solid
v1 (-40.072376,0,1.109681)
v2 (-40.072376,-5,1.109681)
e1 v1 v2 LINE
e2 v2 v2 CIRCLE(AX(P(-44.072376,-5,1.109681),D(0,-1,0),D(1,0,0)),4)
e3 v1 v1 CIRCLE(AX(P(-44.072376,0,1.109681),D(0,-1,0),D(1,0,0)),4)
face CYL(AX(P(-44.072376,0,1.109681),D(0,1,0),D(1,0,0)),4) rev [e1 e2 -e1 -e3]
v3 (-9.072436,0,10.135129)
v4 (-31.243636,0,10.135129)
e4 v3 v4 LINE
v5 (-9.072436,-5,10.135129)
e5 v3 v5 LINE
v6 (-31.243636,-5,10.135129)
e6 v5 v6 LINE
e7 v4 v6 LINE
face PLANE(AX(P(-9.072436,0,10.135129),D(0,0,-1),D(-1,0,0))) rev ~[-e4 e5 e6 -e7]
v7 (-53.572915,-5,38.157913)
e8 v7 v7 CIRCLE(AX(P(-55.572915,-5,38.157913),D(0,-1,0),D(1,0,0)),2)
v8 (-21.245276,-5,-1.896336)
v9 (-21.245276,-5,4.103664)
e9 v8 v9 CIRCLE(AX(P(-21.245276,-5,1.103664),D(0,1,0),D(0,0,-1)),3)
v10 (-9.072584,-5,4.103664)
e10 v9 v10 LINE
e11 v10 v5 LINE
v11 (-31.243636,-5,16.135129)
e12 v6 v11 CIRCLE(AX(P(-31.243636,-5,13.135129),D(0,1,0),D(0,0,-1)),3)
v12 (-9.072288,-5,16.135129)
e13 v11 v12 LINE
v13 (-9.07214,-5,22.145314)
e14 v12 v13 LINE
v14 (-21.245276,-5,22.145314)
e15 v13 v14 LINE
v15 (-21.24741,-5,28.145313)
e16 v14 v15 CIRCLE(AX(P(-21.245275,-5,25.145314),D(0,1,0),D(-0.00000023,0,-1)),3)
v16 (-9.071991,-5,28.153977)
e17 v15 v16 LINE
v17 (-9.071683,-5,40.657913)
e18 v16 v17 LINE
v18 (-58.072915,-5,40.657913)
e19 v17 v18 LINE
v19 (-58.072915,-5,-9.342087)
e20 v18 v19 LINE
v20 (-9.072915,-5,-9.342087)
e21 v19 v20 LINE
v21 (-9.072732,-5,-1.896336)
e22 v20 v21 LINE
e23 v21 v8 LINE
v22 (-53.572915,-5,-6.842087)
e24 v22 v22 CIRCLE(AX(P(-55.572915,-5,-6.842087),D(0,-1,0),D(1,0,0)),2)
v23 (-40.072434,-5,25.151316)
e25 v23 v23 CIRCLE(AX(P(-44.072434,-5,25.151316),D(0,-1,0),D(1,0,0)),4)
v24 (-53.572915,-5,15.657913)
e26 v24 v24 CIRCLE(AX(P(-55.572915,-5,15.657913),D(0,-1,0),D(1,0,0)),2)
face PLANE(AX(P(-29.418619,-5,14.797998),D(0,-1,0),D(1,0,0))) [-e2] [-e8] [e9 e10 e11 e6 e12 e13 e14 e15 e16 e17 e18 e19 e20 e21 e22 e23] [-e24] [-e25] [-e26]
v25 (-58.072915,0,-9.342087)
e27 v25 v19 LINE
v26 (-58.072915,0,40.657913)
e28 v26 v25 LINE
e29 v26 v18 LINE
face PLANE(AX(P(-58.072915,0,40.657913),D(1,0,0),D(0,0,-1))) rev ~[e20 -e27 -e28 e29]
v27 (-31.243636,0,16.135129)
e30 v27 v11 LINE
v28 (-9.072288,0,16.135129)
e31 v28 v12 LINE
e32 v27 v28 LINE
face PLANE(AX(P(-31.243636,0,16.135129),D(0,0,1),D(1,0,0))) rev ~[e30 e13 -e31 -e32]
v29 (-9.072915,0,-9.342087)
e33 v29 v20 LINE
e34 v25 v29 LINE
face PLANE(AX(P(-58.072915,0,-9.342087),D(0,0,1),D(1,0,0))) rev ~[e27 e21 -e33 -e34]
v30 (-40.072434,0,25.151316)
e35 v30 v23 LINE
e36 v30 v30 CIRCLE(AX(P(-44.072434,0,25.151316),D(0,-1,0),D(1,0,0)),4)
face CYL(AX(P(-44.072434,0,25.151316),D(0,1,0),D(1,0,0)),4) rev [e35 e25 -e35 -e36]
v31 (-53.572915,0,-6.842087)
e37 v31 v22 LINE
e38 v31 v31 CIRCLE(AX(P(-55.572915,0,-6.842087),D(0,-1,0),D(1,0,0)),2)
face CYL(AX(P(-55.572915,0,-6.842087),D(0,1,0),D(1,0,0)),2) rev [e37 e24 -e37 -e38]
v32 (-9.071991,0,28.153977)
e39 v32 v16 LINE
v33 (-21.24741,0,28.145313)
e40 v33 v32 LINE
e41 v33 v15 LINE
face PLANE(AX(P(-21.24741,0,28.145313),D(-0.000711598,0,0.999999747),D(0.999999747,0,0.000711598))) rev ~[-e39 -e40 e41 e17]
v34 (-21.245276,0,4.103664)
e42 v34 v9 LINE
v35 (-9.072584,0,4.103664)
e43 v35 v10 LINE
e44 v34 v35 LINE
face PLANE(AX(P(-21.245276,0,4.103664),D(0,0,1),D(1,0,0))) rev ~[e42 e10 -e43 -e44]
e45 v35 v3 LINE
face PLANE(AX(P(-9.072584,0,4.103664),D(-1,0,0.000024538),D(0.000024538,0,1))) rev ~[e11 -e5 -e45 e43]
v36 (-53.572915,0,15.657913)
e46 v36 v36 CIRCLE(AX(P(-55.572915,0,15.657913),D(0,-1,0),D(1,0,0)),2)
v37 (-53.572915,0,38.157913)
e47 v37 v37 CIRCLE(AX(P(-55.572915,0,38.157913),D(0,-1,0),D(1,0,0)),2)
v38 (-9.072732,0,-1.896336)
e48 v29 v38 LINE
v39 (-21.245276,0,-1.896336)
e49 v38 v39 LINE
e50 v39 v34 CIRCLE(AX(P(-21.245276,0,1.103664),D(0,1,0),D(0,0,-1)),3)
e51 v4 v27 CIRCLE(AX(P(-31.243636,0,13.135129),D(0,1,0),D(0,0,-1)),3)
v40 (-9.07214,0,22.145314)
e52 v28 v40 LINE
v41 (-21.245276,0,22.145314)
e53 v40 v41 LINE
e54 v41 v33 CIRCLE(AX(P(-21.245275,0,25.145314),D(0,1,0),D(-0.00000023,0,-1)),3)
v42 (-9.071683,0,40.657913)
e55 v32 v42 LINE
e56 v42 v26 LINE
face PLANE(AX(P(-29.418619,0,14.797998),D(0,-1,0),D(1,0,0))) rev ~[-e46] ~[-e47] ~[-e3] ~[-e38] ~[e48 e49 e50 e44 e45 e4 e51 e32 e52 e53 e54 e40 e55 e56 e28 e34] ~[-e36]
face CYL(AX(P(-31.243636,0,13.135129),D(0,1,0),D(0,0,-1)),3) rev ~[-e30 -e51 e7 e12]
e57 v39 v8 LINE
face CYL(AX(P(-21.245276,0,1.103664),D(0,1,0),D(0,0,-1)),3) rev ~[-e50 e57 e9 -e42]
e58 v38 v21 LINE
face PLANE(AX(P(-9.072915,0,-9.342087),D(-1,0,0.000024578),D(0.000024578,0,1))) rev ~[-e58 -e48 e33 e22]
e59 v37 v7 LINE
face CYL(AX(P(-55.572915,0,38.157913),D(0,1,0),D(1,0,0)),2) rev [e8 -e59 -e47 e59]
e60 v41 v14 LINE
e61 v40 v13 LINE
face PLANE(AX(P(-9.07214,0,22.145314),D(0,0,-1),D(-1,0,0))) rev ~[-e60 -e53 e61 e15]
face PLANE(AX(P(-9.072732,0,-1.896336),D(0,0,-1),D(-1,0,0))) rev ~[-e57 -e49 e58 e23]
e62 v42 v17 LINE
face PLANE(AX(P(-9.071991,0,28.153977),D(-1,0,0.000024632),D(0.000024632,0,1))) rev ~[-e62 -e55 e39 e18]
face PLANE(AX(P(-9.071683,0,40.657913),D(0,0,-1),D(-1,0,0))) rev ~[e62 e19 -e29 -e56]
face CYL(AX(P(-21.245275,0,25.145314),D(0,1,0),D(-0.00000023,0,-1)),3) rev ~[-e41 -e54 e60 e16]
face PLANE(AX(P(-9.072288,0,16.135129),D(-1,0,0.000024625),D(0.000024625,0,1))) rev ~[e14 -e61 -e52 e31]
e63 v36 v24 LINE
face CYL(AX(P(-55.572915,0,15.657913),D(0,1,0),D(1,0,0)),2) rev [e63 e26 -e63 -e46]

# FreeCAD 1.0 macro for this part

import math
import FreeCAD as App
import Part
import Sketcher
Q = App.Units.Quantity

doc = App.newDocument("Part")
params = doc.addObject("Spreadsheet::Sheet", "Params")
for row, (alias, value) in enumerate([
    ("sketch1_diameter", "4 mm"),
    ("sketch1_diameter2", "8 mm"),
    ("sketch1_radius", "3 mm"),
    ("sketch1_width", "49 mm"),
    ("sketch1_height", "50 mm"),
    ("pad1_length", "5 mm"),
], start=1):
    params.set(f"A{row}", alias)
    params.set(f"B{row}", "=" + value)
    params.setAlias(f"B{row}", alias)

body = doc.addObject("PartDesign::Body", "Body")

# Sketch on XZ plane
sketch1 = doc.addObject("Sketcher::SketchObject", "Sketch")
body.addObject(sketch1)
sketch1.AttachmentSupport = (doc.XZ_Plane, [""])
sketch1.MapMode = "FlatFace"
sketch1.addGeometry([
    Part.LineSegment(App.Vector(-9.1, 28.2, 0), App.Vector(-9.1, 40.7, 0)),  # 0
    Part.LineSegment(App.Vector(-9.1, 40.7, 0), App.Vector(-58.1, 40.7, 0)),  # 1
    Part.LineSegment(App.Vector(-58.1, 40.7, 0), App.Vector(-58.1, -9.3, 0)),  # 2
    Part.LineSegment(App.Vector(-58.1, -9.3, 0), App.Vector(-9.1, -9.3, 0)),  # 3
    Part.LineSegment(App.Vector(-9.1, -9.3, 0), App.Vector(-9.1, -1.9, 0)),  # 4
    Part.LineSegment(App.Vector(-9.1, -1.9, 0), App.Vector(-21.2, -1.9, 0)),  # 5
    Part.ArcOfCircle(Part.Circle(App.Vector(-21.2, 1.1, 0), App.Vector(0, 0, 1), 3), math.radians(90), math.radians(270)),  # 6
    Part.LineSegment(App.Vector(-21.2, 4.1, 0), App.Vector(-9.1, 4.1, 0)),  # 7
    Part.LineSegment(App.Vector(-9.1, 4.1, 0), App.Vector(-9.1, 10.1, 0)),  # 8
    Part.LineSegment(App.Vector(-9.1, 10.1, 0), App.Vector(-31.2, 10.1, 0)),  # 9
    Part.ArcOfCircle(Part.Circle(App.Vector(-31.2, 13.1, 0), App.Vector(0, 0, 1), 3), math.radians(90), math.radians(270)),  # 10
    Part.LineSegment(App.Vector(-31.2, 16.1, 0), App.Vector(-9.1, 16.1, 0)),  # 11
    Part.LineSegment(App.Vector(-9.1, 16.1, 0), App.Vector(-9.1, 22.1, 0)),  # 12
    Part.LineSegment(App.Vector(-9.1, 22.1, 0), App.Vector(-21.2, 22.1, 0)),  # 13
    Part.ArcOfCircle(Part.Circle(App.Vector(-21.2, 25.1, 0), App.Vector(0, 0, 1), 3), math.radians(90), math.radians(270)),  # 14
    Part.LineSegment(App.Vector(-21.2, 28.1, 0), App.Vector(-9.1, 28.2, 0)),  # 15
    Part.Circle(App.Vector(-55.6, -6.8, 0), App.Vector(0, 0, 1), 2),  # 16
    Part.Circle(App.Vector(-55.6, 15.7, 0), App.Vector(0, 0, 1), 2),  # 17
    Part.Circle(App.Vector(-44.1, 1.1, 0), App.Vector(0, 0, 1), 4),  # 18
    Part.Circle(App.Vector(-55.6, 38.2, 0), App.Vector(0, 0, 1), 2),  # 19
    Part.Circle(App.Vector(-44.1, 25.2, 0), App.Vector(0, 0, 1), 4),  # 20
], False)
sketch1.addConstraint([
    Sketcher.Constraint("Coincident", 0, 2, 1, 1),
    Sketcher.Constraint("Coincident", 1, 2, 2, 1),
    Sketcher.Constraint("Coincident", 2, 2, 3, 1),
    Sketcher.Constraint("Coincident", 3, 2, 4, 1),
    Sketcher.Constraint("Coincident", 4, 2, 5, 1),
    Sketcher.Constraint("Tangent", 5, 2, 6, 2),
    Sketcher.Constraint("Tangent", 6, 1, 7, 1),
    Sketcher.Constraint("Coincident", 7, 2, 8, 1),
    Sketcher.Constraint("Coincident", 8, 2, 9, 1),
    Sketcher.Constraint("Tangent", 9, 2, 10, 2),
    Sketcher.Constraint("Tangent", 10, 1, 11, 1),
    Sketcher.Constraint("Coincident", 11, 2, 12, 1),
    Sketcher.Constraint("Coincident", 12, 2, 13, 1),
    Sketcher.Constraint("Tangent", 13, 2, 14, 2),
    Sketcher.Constraint("Tangent", 14, 1, 15, 1),
    Sketcher.Constraint("Coincident", 15, 2, 0, 1),
    Sketcher.Constraint("Horizontal", 1),
    Sketcher.Constraint("Vertical", 2),
    Sketcher.Constraint("Horizontal", 3),
    Sketcher.Constraint("Horizontal", 5),
    Sketcher.Constraint("Horizontal", 7),
    Sketcher.Constraint("Horizontal", 9),
    Sketcher.Constraint("Horizontal", 11),
    Sketcher.Constraint("Horizontal", 13),
    Sketcher.Constraint("Equal", 6, 10),
    Sketcher.Constraint("Equal", 10, 14),
    Sketcher.Constraint("Equal", 16, 17),
    Sketcher.Constraint("Equal", 17, 19),
    Sketcher.Constraint("Equal", 18, 20),
    Sketcher.Constraint("Parallel", 0, 4),
    Sketcher.Constraint("Parallel", 4, 8),
    Sketcher.Constraint("Parallel", 8, 12),
    Sketcher.Constraint("Vertical", 6, 3, 14, 3),
    Sketcher.Constraint("Vertical", 16, 3, 17, 3),
    Sketcher.Constraint("Vertical", 17, 3, 19, 3),
    Sketcher.Constraint("Diameter", 16, Q("4 mm")),
    Sketcher.Constraint("Diameter", 18, Q("8 mm")),
    Sketcher.Constraint("Radius", 6, Q("3 mm")),
    Sketcher.Constraint("DistanceX", 3, 1, 3, 2, Q("49 mm")),
    Sketcher.Constraint("DistanceY", 2, 2, 2, 1, Q("50 mm")),
    Sketcher.Constraint("DistanceY", 16, 3, 19, 3, Q("45 mm")),
    Sketcher.Constraint("DistanceY", 17, 3, 1, 2, Q("25 mm")),
    Sketcher.Constraint("DistanceY", 16, 3, 17, 3, Q("22.5 mm")),
    Sketcher.Constraint("DistanceX", 1, 2, 19, 3, Q("2.5 mm")),
    Sketcher.Constraint("DistanceX", 9, 2, 9, 1, Q("22.1712 mm")),
    Sketcher.Constraint("DistanceY", 16, 3, 14, 3, Q("31.987401 mm")),
    Sketcher.Constraint("DistanceX", 18, 3, 6, 3, Q("22.8271 mm")),
    Sketcher.Constraint("DistanceX", 20, 3, 10, 3, Q("12.828798 mm")),
    Sketcher.Constraint("Distance", 4, Q("7.445751 mm")),
    Sketcher.Constraint("DistanceX", 1, 2, 1, 1, Q("49.001232 mm")),
    Sketcher.Constraint("DistanceX", 5, 2, 5, 1, Q("12.172544 mm")),
    Sketcher.Constraint("DistanceX", 7, 1, 7, 2, Q("12.172692 mm")),
    Sketcher.Constraint("DistanceX", 11, 1, 11, 2, Q("22.171348 mm")),
    Sketcher.Constraint("DistanceX", 13, 2, 13, 1, Q("12.173136 mm")),
    Sketcher.Constraint("DistanceY", -1, 1, 10, 3, Q("13.135129 mm")),
    Sketcher.Constraint("DistanceY", -1, 1, 18, 3, Q("1.109681 mm")),
    Sketcher.Constraint("DistanceX", 12, 2, -1, 1, Q("9.07214 mm")),
    Sketcher.Constraint("DistanceX", 14, 1, -1, 1, Q("21.24741 mm")),
    Sketcher.Constraint("DistanceY", 16, 3, 18, 3, Q("7.951768 mm")),
    Sketcher.Constraint("DistanceY", -1, 1, 20, 3, Q("25.151316 mm")),
])
sketch1.setExpression("Constraints[35]", "Params.sketch1_diameter")
sketch1.setExpression("Constraints[36]", "Params.sketch1_diameter2")
sketch1.setExpression("Constraints[37]", "Params.sketch1_radius")
sketch1.setExpression("Constraints[38]", "Params.sketch1_width")
sketch1.setExpression("Constraints[39]", "Params.sketch1_height")
pad1 = doc.addObject("PartDesign::Pad", "Pad")
body.addObject(pad1)
pad1.Profile = sketch1
pad1.setExpression("Length", "Params.pad1_length")

doc.recompute()
